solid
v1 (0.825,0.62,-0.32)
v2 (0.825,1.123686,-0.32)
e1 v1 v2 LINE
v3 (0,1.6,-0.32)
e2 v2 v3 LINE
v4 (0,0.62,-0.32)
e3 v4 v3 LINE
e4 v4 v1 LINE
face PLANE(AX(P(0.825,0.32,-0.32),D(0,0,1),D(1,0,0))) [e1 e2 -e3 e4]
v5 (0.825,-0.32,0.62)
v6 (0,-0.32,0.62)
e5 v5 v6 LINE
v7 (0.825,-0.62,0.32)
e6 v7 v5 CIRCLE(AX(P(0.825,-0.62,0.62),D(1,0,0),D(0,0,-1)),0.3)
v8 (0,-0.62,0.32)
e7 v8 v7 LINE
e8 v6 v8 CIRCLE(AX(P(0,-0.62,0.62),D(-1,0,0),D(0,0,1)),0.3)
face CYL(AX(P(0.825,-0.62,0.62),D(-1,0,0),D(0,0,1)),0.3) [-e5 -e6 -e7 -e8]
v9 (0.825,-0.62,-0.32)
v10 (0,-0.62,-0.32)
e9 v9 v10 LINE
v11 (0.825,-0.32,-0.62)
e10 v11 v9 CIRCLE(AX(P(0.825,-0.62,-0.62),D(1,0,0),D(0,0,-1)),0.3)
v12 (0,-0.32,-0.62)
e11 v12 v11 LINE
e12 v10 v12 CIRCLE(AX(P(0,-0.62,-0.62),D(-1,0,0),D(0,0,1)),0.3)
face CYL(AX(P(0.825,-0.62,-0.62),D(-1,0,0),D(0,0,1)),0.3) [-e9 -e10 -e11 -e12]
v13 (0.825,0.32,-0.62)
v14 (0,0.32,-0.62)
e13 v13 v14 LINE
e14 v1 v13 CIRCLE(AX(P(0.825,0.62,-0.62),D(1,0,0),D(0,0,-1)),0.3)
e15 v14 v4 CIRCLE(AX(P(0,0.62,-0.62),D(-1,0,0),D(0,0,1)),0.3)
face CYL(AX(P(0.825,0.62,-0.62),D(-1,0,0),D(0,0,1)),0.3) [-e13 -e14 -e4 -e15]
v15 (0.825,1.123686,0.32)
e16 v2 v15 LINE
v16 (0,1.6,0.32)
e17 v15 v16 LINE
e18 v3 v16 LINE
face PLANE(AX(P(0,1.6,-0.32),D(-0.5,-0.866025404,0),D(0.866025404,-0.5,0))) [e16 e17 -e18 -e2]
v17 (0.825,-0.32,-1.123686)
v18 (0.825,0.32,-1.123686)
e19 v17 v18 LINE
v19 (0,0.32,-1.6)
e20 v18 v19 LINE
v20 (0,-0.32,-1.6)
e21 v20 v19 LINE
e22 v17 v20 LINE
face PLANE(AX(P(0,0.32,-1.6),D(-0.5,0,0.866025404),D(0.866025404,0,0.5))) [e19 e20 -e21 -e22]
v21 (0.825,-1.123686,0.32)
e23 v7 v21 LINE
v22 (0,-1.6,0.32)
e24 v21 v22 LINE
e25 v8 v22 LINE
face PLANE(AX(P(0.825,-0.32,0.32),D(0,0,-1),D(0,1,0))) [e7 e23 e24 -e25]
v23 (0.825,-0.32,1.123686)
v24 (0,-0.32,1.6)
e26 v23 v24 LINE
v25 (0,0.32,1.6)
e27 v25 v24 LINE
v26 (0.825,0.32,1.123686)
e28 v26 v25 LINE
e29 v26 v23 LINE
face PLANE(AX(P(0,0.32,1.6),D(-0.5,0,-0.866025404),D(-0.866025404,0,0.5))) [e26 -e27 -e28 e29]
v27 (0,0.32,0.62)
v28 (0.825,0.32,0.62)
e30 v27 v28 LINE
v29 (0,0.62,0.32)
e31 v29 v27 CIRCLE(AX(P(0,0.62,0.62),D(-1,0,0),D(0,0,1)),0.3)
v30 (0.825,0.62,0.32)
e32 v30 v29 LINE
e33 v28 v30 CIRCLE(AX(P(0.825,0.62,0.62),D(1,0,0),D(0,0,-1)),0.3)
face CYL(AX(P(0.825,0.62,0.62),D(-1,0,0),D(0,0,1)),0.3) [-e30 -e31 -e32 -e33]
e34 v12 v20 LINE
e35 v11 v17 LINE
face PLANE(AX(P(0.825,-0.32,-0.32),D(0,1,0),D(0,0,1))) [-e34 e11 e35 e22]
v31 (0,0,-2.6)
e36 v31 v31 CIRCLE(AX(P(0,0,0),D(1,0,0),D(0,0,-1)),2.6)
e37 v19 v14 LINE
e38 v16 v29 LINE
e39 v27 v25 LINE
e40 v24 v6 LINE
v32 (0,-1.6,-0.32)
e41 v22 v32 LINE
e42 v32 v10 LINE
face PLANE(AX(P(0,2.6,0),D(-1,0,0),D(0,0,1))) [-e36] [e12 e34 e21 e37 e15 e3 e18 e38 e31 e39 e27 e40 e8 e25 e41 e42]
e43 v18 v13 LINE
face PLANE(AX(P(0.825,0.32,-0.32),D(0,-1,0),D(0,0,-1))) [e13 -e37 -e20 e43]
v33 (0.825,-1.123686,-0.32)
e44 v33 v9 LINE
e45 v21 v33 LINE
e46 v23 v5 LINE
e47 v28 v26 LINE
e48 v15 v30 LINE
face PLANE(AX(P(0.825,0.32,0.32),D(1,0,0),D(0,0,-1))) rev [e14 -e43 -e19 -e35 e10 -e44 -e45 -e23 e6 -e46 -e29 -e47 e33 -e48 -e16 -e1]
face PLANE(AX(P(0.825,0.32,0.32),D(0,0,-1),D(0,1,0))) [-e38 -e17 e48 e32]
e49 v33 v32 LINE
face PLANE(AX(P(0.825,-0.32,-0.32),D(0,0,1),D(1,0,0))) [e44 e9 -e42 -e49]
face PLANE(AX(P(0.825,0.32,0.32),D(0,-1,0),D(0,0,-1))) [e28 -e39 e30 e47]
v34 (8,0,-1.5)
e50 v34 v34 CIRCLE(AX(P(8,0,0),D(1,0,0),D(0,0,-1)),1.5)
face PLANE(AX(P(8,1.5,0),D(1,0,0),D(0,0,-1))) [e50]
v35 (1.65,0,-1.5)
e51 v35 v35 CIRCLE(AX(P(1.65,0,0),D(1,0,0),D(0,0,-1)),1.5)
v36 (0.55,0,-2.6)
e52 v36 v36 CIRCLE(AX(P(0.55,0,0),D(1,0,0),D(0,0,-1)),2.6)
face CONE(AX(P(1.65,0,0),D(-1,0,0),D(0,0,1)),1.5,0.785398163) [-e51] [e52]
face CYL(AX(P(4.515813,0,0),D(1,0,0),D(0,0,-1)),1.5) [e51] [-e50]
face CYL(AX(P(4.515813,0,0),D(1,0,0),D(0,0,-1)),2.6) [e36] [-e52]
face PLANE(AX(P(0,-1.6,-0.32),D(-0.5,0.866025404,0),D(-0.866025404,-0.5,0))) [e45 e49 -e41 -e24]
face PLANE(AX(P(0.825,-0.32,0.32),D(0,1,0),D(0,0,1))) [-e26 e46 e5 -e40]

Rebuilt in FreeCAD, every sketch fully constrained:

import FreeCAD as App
import Part
import Sketcher
Q = App.Units.Quantity


def edges_at(feature, points):
    """Names of the edges that pass closest to the given points."""
    edges = feature.Shape.Edges
    near = lambda p: min(range(len(edges)), key=lambda i: edges[i].distToShape(Part.Vertex(*p))[0])
    return sorted({f"Edge{near(p) + 1}" for p in points})


def faces_at(feature, points):
    """Names of the faces that lie closest to the given points."""
    faces = feature.Shape.Faces
    near = lambda p: min(range(len(faces)), key=lambda i: faces[i].distToShape(Part.Vertex(*p))[0])
    return sorted({f"Face{near(p) + 1}" for p in points})

doc = App.newDocument("Part")
body = doc.addObject("PartDesign::Body", "Body")

# Sketch on XY plane
sketch1 = body.newObject("Sketcher::SketchObject", "Sketch")
sketch1.AttachmentSupport = (doc.getObject("XY_Plane"), [""])
sketch1.MapMode = "FlatFace"
sketch1.addGeometry(Part.LineSegment(App.Vector(8, 1.5, 0), App.Vector(1.6, 1.5, 0)), False)
sketch1.addGeometry(Part.LineSegment(App.Vector(1.6, 1.5, 0), App.Vector(0.6, 2.6, 0)), False)
sketch1.addGeometry(Part.LineSegment(App.Vector(0.6, 2.6, 0), App.Vector(0, 2.6, 0)), False)
sketch1.addGeometry(Part.LineSegment(App.Vector(0, 2.6, 0), App.Vector(0, 0, 0)), False)
sketch1.addGeometry(Part.LineSegment(App.Vector(0, 0, 0), App.Vector(8, 0, 0)), False)
sketch1.addGeometry(Part.LineSegment(App.Vector(8, 0, 0), App.Vector(8, 1.5, 0)), False)
sketch1.addConstraint(Sketcher.Constraint("Coincident", 0, 2, 1, 1))
sketch1.addConstraint(Sketcher.Constraint("Coincident", 1, 2, 2, 1))
sketch1.addConstraint(Sketcher.Constraint("Coincident", 2, 2, 3, 1))
sketch1.addConstraint(Sketcher.Constraint("Coincident", 3, 2, 4, 1))
sketch1.addConstraint(Sketcher.Constraint("Coincident", 4, 2, 5, 1))
sketch1.addConstraint(Sketcher.Constraint("Coincident", 5, 2, 0, 1))
sketch1.addConstraint(Sketcher.Constraint("Horizontal", 0))
sketch1.addConstraint(Sketcher.Constraint("Horizontal", 2))
sketch1.addConstraint(Sketcher.Constraint("Vertical", 3))
sketch1.addConstraint(Sketcher.Constraint("Horizontal", 4))
sketch1.addConstraint(Sketcher.Constraint("Vertical", 5))
sketch1.addConstraint(Sketcher.Constraint("Coincident", 3, 2, -1, 1))
sketch1.addConstraint(Sketcher.Constraint("DistanceX", 4, 1, 4, 2, 8.0))
sketch1.addConstraint(Sketcher.Constraint("Angle", 1, Q("135 deg")))
sketch1.addConstraint(Sketcher.Constraint("DistanceY", 3, 2, 3, 1, 2.6))
sketch1.addConstraint(Sketcher.Constraint("DistanceY", 5, 1, 5, 2, 1.5))
sketch1.addConstraint(Sketcher.Constraint("DistanceX", 0, 2, 0, 1, 6.35))
revolution = body.newObject("PartDesign::Revolution", "Revolution")
revolution.Profile = sketch1
revolution.ReferenceAxis = (sketch1, ["H_Axis"])
revolution.Angle = 360

# Sketch on YZ plane
sketch2 = body.newObject("Sketcher::SketchObject", "Sketch001")
sketch2.AttachmentSupport = (doc.getObject("YZ_Plane"), [""])
sketch2.MapMode = "FlatFace"
sketch2.addGeometry(Part.LineSegment(App.Vector(0.3, -0.3, 0), App.Vector(1.6, -0.3, 0)), False)
sketch2.addGeometry(Part.LineSegment(App.Vector(1.6, -0.3, 0), App.Vector(1.6, 0.3, 0)), False)
sketch2.addGeometry(Part.LineSegment(App.Vector(1.6, 0.3, 0), App.Vector(0.3, 0.3, 0)), False)
sketch2.addGeometry(Part.LineSegment(App.Vector(0.3, 0.3, 0), App.Vector(0.3, 1.6, 0)), False)
sketch2.addGeometry(Part.LineSegment(App.Vector(0.3, 1.6, 0), App.Vector(-0.3, 1.6, 0)), False)
sketch2.addGeometry(Part.LineSegment(App.Vector(-0.3, 1.6, 0), App.Vector(-0.3, 0.3, 0)), False)
sketch2.addGeometry(Part.LineSegment(App.Vector(-0.3, 0.3, 0), App.Vector(-1.6, 0.3, 0)), False)
sketch2.addGeometry(Part.LineSegment(App.Vector(-1.6, 0.3, 0), App.Vector(-1.6, -0.3, 0)), False)
sketch2.addGeometry(Part.LineSegment(App.Vector(-1.6, -0.3, 0), App.Vector(-0.3, -0.3, 0)), False)
sketch2.addGeometry(Part.LineSegment(App.Vector(-0.3, -0.3, 0), App.Vector(-0.3, -1.6, 0)), False)
sketch2.addGeometry(Part.LineSegment(App.Vector(-0.3, -1.6, 0), App.Vector(0.3, -1.6, 0)), False)
sketch2.addGeometry(Part.LineSegment(App.Vector(0.3, -1.6, 0), App.Vector(0.3, -0.3, 0)), False)
sketch2.addConstraint(Sketcher.Constraint("Coincident", 0, 2, 1, 1))
sketch2.addConstraint(Sketcher.Constraint("Coincident", 1, 2, 2, 1))
sketch2.addConstraint(Sketcher.Constraint("Coincident", 2, 2, 3, 1))
sketch2.addConstraint(Sketcher.Constraint("Coincident", 3, 2, 4, 1))
sketch2.addConstraint(Sketcher.Constraint("Coincident", 4, 2, 5, 1))
sketch2.addConstraint(Sketcher.Constraint("Coincident", 5, 2, 6, 1))
sketch2.addConstraint(Sketcher.Constraint("Coincident", 6, 2, 7, 1))
sketch2.addConstraint(Sketcher.Constraint("Coincident", 7, 2, 8, 1))
sketch2.addConstraint(Sketcher.Constraint("Coincident", 8, 2, 9, 1))
sketch2.addConstraint(Sketcher.Constraint("Coincident", 9, 2, 10, 1))
sketch2.addConstraint(Sketcher.Constraint("Coincident", 10, 2, 11, 1))
sketch2.addConstraint(Sketcher.Constraint("Coincident", 11, 2, 0, 1))
sketch2.addConstraint(Sketcher.Constraint("Horizontal", 0))
sketch2.addConstraint(Sketcher.Constraint("Vertical", 1))
sketch2.addConstraint(Sketcher.Constraint("Horizontal", 2))
sketch2.addConstraint(Sketcher.Constraint("Vertical", 3))
sketch2.addConstraint(Sketcher.Constraint("Horizontal", 4))
sketch2.addConstraint(Sketcher.Constraint("Vertical", 5))
sketch2.addConstraint(Sketcher.Constraint("Horizontal", 6))
sketch2.addConstraint(Sketcher.Constraint("Vertical", 7))
sketch2.addConstraint(Sketcher.Constraint("Horizontal", 8))
sketch2.addConstraint(Sketcher.Constraint("Vertical", 9))
sketch2.addConstraint(Sketcher.Constraint("Horizontal", 10))
sketch2.addConstraint(Sketcher.Constraint("Vertical", 11))
sketch2.addConstraint(Sketcher.Constraint("Symmetric", 0, 2, 6, 2, -1, 1))
sketch2.addConstraint(Sketcher.Constraint("Symmetric", 2, 2, 8, 2, -1, 1))
sketch2.addConstraint(Sketcher.Constraint("Symmetric", 4, 2, 10, 2, -1, 1))
sketch2.addConstraint(Sketcher.Constraint("Symmetric", 2, 2, 5, 2, -2))
sketch2.addConstraint(Sketcher.Constraint("Equal", 10, 1))
sketch2.addConstraint(Sketcher.Constraint("Equal", 8, 3))
sketch2.addConstraint(Sketcher.Constraint("DistanceX", 0, 1, 0, 2, 1.28))
sketch2.addConstraint(Sketcher.Constraint("DistanceX", 4, 2, 4, 1, 0.64))
pocket1 = body.newObject("PartDesign::Pocket", "Pocket")
pocket1.Profile = sketch2
pocket1.Length = 0.825
pocket1.Reversed = True
doc.recompute()

draft = body.newObject("PartDesign::Draft", "Draft")
draft.Base = (pocket1, faces_at(pocket1, [
    (0.412, 1.6, 0),
    (0.412, 0, 1.6),
    (0.412, -1.6, 0),
    (0.412, 0, -1.6),
]))
draft.NeutralPlane = (doc.getObject("YZ_Plane"), [""])
draft.Angle = 30
draft.Reversed = True
doc.recompute()

fillet = body.newObject("PartDesign::Fillet", "Fillet")
fillet.Base = (draft, edges_at(draft, [
    (0.412, 0.32, 0.32),
    (0.412, -0.32, 0.32),
    (0.412, -0.32, -0.32),
    (0.412, 0.32, -0.32),
]))
fillet.Radius = 0.3

doc.recompute()
